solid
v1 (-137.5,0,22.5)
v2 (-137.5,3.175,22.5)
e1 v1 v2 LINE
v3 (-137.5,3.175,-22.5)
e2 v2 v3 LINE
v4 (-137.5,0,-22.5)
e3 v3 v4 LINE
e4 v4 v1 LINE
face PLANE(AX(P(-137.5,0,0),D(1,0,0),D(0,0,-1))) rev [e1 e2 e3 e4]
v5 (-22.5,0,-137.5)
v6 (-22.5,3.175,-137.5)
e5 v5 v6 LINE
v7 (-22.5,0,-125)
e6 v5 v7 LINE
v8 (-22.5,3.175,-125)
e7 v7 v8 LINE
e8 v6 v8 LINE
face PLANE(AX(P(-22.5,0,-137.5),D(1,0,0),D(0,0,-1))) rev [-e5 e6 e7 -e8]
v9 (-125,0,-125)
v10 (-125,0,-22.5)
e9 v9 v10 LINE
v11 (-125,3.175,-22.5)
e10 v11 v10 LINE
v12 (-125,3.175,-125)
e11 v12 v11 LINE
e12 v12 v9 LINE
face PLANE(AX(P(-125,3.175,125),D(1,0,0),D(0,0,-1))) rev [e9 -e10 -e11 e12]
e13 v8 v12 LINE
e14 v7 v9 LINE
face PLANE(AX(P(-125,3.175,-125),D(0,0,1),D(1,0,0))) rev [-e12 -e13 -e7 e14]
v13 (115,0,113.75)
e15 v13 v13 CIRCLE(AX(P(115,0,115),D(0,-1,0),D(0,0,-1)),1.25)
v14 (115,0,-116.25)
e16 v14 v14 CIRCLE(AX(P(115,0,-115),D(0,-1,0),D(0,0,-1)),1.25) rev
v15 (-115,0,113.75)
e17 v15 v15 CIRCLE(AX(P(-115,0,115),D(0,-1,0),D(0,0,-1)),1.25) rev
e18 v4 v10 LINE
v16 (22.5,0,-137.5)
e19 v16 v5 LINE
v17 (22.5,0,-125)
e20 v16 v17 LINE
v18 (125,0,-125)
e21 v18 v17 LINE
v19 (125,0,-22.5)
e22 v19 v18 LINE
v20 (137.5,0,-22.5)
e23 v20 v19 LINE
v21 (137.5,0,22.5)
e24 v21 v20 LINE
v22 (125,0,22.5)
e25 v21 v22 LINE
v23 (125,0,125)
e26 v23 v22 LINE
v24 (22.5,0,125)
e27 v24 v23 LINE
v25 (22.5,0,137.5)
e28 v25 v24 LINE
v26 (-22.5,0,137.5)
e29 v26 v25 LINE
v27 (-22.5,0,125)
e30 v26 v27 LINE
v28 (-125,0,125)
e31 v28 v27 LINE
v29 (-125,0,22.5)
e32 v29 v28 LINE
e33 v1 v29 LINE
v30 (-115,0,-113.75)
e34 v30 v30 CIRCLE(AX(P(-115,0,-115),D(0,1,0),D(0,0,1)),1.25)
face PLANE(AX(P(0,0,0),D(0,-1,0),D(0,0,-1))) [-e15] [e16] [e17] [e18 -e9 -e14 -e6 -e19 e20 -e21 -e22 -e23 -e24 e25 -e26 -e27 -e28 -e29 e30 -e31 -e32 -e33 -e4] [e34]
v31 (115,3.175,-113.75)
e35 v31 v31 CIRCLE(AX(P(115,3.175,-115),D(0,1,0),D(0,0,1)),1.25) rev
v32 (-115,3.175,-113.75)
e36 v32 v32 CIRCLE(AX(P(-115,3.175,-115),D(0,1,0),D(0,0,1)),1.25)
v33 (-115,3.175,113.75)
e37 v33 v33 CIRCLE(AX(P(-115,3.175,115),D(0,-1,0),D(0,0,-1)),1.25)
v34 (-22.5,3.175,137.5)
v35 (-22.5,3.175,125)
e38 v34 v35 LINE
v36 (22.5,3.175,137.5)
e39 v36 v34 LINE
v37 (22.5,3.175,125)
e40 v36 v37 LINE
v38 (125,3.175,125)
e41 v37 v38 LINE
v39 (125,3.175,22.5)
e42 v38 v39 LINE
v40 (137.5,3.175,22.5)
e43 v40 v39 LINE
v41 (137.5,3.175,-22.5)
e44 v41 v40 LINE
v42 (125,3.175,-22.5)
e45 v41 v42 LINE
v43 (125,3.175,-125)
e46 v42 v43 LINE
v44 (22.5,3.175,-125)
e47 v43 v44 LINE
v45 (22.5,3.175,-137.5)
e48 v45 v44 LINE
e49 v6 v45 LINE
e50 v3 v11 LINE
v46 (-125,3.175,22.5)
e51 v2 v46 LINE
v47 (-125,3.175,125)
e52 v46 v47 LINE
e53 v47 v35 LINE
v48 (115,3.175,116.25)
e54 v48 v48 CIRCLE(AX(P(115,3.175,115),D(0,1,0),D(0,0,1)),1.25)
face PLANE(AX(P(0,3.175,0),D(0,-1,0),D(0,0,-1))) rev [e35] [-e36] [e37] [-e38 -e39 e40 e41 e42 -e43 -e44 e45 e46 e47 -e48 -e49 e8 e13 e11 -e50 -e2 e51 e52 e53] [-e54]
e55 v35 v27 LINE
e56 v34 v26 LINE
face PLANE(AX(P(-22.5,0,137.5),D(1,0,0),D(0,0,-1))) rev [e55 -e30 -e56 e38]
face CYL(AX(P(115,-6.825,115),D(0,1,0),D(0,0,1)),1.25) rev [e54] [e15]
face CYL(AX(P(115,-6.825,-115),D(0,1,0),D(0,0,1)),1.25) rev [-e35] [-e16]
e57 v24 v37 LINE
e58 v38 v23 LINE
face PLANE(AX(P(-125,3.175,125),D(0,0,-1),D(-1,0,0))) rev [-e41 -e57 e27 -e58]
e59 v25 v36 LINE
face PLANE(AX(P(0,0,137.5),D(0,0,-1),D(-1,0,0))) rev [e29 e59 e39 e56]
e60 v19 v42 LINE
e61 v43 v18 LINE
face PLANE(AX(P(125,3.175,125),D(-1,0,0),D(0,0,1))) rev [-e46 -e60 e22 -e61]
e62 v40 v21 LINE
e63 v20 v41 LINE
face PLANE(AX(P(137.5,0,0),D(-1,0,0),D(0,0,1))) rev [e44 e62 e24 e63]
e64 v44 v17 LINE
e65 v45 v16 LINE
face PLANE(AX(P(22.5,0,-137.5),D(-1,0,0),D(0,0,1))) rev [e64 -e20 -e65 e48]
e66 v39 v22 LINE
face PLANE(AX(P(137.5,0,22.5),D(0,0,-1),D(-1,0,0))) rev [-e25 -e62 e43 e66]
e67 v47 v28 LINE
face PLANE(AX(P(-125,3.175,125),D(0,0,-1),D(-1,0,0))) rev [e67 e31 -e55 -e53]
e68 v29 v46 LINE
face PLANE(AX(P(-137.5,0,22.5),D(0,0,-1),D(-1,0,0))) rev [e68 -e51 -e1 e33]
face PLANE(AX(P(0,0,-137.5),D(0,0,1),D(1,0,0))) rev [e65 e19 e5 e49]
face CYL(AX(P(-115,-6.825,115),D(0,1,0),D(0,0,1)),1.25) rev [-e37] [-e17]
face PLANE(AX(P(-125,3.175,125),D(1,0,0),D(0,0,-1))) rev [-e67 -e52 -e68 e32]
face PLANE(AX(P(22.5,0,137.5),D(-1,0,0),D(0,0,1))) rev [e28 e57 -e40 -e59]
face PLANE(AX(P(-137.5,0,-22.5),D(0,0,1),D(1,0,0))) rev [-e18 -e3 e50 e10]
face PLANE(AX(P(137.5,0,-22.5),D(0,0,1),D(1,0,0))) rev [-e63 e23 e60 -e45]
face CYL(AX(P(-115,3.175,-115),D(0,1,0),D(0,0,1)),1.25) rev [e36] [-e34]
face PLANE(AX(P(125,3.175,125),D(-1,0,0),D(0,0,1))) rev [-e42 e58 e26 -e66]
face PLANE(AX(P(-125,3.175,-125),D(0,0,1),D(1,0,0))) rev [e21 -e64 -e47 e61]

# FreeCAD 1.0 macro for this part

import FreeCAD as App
import Part
import Sketcher
from FreeCAD import Vector
Q = App.Units.Quantity


def add_polygon(sketch, points):
    """Adds a closed chain of lines whose ends are joined by coincident constraints."""
    first, n = sketch.GeometryCount, len(points)
    for a, b in zip(points, points[1:] + points[:1]):
        sketch.addGeometry(Part.LineSegment(App.Vector(*a, 0), App.Vector(*b, 0)), False)
    for i in range(n):
        sketch.addConstraint(Sketcher.Constraint("Coincident", first + i, 2, first + (i + 1) % n, 1))

doc = App.newDocument("Part")
body = doc.addObject("PartDesign::Body", "Body")

sketch1 = doc.addObject("Sketcher::SketchObject", "Sketch")
body.addObject(sketch1)
sketch1.AttachmentSupport = (doc.XZ_Plane, [""])
sketch1.MapMode = "FlatFace"
add_polygon(sketch1, [(-125, -125), (-125, 125), (125, 125), (125, -125)])
sketch1.addConstraint([
    Sketcher.Constraint("Vertical", 0),
    Sketcher.Constraint("Horizontal", 1),
    Sketcher.Constraint("Vertical", 2),
    Sketcher.Constraint("Horizontal", 3),
    Sketcher.Constraint("Symmetric", 0, 2, 2, 2, -1, 1),
    Sketcher.Constraint("Equal", 3, 0),
    Sketcher.Constraint("DistanceX", 1, 1, 1, 2, Q("250 mm")),
])
pad1 = doc.addObject("PartDesign::Pad", "Pad")
body.addObject(pad1)
pad1.Profile = sketch1
pad1.Length = 3.175
pad1.Reversed = True

sketch2 = doc.addObject("Sketcher::SketchObject", "Sketch001")
body.addObject(sketch2)
sketch2.AttachmentSupport = (doc.XY_Plane, [""])
sketch2.MapMode = "FlatFace"
sketch2.AttachmentOffset = App.Placement(Vector(0, 0, -125), App.Rotation())
add_polygon(sketch2, [(22.5, 3.2), (22.5, 0), (-22.5, 0), (-22.5, 3.2)])
sketch2.addConstraint([
    Sketcher.Constraint("Vertical", 0),
    Sketcher.Constraint("Horizontal", 1),
    Sketcher.Constraint("Vertical", 2),
    Sketcher.Constraint("Horizontal", 3),
    Sketcher.Constraint("Symmetric", 0, 2, 1, 2, -1, 1),
    Sketcher.Constraint("DistanceX", 1, 2, 1, 1, Q("45 mm")),
    Sketcher.Constraint("DistanceY", 0, 2, 0, 1, Q("3.175 mm")),
])
pad2 = doc.addObject("PartDesign::Pad", "Pad001")
body.addObject(pad2)
pad2.Profile = sketch2
pad2.Length = 12.5
pad2.Reversed = True

sketch3 = doc.addObject("Sketcher::SketchObject", "Sketch002")
body.addObject(sketch3)
sketch3.AttachmentSupport = (doc.YZ_Plane, [""])
sketch3.MapMode = "FlatFace"
sketch3.AttachmentOffset = App.Placement(Vector(0, 0, -125), App.Rotation())
add_polygon(sketch3, [(3.2, -22.5), (0, -22.5), (0, 22.5), (3.2, 22.5)])
sketch3.addConstraint([
    Sketcher.Constraint("Horizontal", 0),
    Sketcher.Constraint("Vertical", 1),
    Sketcher.Constraint("Horizontal", 2),
    Sketcher.Constraint("Vertical", 3),
    Sketcher.Constraint("Symmetric", 0, 2, 1, 2, -1, 1),
    Sketcher.Constraint("DistanceY", 1, 1, 1, 2, Q("45 mm")),
    Sketcher.Constraint("DistanceX", 0, 2, 0, 1, Q("3.175 mm")),
])
pad3 = doc.addObject("PartDesign::Pad", "Pad002")
body.addObject(pad3)
pad3.Profile = sketch3
pad3.Length = 12.5
pad3.Reversed = True

sketch4 = doc.addObject("Sketcher::SketchObject", "Sketch003")
body.addObject(sketch4)
sketch4.AttachmentSupport = (doc.XY_Plane, [""])
sketch4.MapMode = "FlatFace"
sketch4.AttachmentOffset = App.Placement(Vector(0, 0, 125), App.Rotation())
add_polygon(sketch4, [(-22.5, 3.2), (-22.5, 0), (22.5, 0), (22.5, 3.2)])
sketch4.addConstraint([
    Sketcher.Constraint("Vertical", 0),
    Sketcher.Constraint("Horizontal", 1),
    Sketcher.Constraint("Vertical", 2),
    Sketcher.Constraint("Horizontal", 3),
    Sketcher.Constraint("Symmetric", 0, 2, 1, 2, -1, 1),
    Sketcher.Constraint("DistanceX", 1, 1, 1, 2, Q("45 mm")),
    Sketcher.Constraint("DistanceY", 0, 2, 0, 1, Q("3.175 mm")),
])
pad4 = doc.addObject("PartDesign::Pad", "Pad003")
body.addObject(pad4)
pad4.Profile = sketch4
pad4.Length = 12.5

sketch5 = doc.addObject("Sketcher::SketchObject", "Sketch004")
body.addObject(sketch5)
sketch5.AttachmentSupport = (doc.YZ_Plane, [""])
sketch5.MapMode = "FlatFace"
sketch5.AttachmentOffset = App.Placement(Vector(0, 0, 125), App.Rotation())
add_polygon(sketch5, [(3.2, 22.5), (0, 22.5), (0, -22.5), (3.2, -22.5)])
sketch5.addConstraint([
    Sketcher.Constraint("Horizontal", 0),
    Sketcher.Constraint("Vertical", 1),
    Sketcher.Constraint("Horizontal", 2),
    Sketcher.Constraint("Vertical", 3),
    Sketcher.Constraint("Symmetric", 0, 2, 1, 2, -1, 1),
    Sketcher.Constraint("DistanceY", 1, 2, 1, 1, Q("45 mm")),
    Sketcher.Constraint("DistanceX", 0, 2, 0, 1, Q("3.175 mm")),
])
pad5 = doc.addObject("PartDesign::Pad", "Pad004")
body.addObject(pad5)
pad5.Profile = sketch5
pad5.Length = 12.5

sketch6 = doc.addObject("Sketcher::SketchObject", "Sketch005")
body.addObject(sketch6)
sketch6.AttachmentSupport = (doc.XZ_Plane, [""])
sketch6.MapMode = "FlatFace"
sketch6.AttachmentOffset = App.Placement(Vector(0, 0, -3.175), App.Rotation())
sketch6.addGeometry(Part.Circle(Vector(-115, -115, 0), Vector(0, 0, 1), 1.2), False)
sketch6.addConstraint([
    Sketcher.Constraint("Diameter", 0, Q("2.5 mm")),
    Sketcher.Constraint("DistanceX", 0, 3, -1, 1, Q("115 mm")),
    Sketcher.Constraint("DistanceY", 0, 3, -1, 1, Q("115 mm")),
])
doc.recompute()
hole = doc.addObject("PartDesign::Hole", "Hole")
body.addObject(hole)
hole.Profile = sketch6
hole.ThreadType = "None"
hole.Diameter = 2.5
hole.DepthType = "ThroughAll"
hole.Reversed = True

sketch7 = doc.addObject("Sketcher::SketchObject", "Sketch006")
body.addObject(sketch7)
sketch7.AttachmentSupport = (doc.XZ_Plane, [""])
sketch7.MapMode = "FlatFace"
sketch7.AttachmentOffset = App.Placement(Vector(0, 0, -3.175), App.Rotation())
sketch7.addGeometry([
    Part.Circle(Vector(115, -115, 0), Vector(0, 0, 1), 1.2),
    Part.Circle(Vector(115, 115, 0), Vector(0, 0, 1), 1.2),
    Part.Circle(Vector(-115, 115, 0), Vector(0, 0, 1), 1.2),
], False)
sketch7.addConstraint([
    Sketcher.Constraint("Equal", 0, 1),
    Sketcher.Constraint("Equal", 1, 2),
    Sketcher.Constraint("Symmetric", 0, 3, 2, 3, -1, 1),
    Sketcher.Constraint("Symmetric", 1, 3, 2, 3, -2),
    Sketcher.Constraint("Diameter", 0, Q("2.5 mm")),
    Sketcher.Constraint("DistanceX", -1, 1, 0, 3, Q("115 mm")),
    Sketcher.Constraint("DistanceY", 0, 3, -1, 1, Q("115 mm")),
])
pocket1 = doc.addObject("PartDesign::Pocket", "Pocket")
body.addObject(pocket1)
pocket1.Profile = sketch7
pocket1.Length = 10
pocket1.Reversed = True

doc.recompute()
